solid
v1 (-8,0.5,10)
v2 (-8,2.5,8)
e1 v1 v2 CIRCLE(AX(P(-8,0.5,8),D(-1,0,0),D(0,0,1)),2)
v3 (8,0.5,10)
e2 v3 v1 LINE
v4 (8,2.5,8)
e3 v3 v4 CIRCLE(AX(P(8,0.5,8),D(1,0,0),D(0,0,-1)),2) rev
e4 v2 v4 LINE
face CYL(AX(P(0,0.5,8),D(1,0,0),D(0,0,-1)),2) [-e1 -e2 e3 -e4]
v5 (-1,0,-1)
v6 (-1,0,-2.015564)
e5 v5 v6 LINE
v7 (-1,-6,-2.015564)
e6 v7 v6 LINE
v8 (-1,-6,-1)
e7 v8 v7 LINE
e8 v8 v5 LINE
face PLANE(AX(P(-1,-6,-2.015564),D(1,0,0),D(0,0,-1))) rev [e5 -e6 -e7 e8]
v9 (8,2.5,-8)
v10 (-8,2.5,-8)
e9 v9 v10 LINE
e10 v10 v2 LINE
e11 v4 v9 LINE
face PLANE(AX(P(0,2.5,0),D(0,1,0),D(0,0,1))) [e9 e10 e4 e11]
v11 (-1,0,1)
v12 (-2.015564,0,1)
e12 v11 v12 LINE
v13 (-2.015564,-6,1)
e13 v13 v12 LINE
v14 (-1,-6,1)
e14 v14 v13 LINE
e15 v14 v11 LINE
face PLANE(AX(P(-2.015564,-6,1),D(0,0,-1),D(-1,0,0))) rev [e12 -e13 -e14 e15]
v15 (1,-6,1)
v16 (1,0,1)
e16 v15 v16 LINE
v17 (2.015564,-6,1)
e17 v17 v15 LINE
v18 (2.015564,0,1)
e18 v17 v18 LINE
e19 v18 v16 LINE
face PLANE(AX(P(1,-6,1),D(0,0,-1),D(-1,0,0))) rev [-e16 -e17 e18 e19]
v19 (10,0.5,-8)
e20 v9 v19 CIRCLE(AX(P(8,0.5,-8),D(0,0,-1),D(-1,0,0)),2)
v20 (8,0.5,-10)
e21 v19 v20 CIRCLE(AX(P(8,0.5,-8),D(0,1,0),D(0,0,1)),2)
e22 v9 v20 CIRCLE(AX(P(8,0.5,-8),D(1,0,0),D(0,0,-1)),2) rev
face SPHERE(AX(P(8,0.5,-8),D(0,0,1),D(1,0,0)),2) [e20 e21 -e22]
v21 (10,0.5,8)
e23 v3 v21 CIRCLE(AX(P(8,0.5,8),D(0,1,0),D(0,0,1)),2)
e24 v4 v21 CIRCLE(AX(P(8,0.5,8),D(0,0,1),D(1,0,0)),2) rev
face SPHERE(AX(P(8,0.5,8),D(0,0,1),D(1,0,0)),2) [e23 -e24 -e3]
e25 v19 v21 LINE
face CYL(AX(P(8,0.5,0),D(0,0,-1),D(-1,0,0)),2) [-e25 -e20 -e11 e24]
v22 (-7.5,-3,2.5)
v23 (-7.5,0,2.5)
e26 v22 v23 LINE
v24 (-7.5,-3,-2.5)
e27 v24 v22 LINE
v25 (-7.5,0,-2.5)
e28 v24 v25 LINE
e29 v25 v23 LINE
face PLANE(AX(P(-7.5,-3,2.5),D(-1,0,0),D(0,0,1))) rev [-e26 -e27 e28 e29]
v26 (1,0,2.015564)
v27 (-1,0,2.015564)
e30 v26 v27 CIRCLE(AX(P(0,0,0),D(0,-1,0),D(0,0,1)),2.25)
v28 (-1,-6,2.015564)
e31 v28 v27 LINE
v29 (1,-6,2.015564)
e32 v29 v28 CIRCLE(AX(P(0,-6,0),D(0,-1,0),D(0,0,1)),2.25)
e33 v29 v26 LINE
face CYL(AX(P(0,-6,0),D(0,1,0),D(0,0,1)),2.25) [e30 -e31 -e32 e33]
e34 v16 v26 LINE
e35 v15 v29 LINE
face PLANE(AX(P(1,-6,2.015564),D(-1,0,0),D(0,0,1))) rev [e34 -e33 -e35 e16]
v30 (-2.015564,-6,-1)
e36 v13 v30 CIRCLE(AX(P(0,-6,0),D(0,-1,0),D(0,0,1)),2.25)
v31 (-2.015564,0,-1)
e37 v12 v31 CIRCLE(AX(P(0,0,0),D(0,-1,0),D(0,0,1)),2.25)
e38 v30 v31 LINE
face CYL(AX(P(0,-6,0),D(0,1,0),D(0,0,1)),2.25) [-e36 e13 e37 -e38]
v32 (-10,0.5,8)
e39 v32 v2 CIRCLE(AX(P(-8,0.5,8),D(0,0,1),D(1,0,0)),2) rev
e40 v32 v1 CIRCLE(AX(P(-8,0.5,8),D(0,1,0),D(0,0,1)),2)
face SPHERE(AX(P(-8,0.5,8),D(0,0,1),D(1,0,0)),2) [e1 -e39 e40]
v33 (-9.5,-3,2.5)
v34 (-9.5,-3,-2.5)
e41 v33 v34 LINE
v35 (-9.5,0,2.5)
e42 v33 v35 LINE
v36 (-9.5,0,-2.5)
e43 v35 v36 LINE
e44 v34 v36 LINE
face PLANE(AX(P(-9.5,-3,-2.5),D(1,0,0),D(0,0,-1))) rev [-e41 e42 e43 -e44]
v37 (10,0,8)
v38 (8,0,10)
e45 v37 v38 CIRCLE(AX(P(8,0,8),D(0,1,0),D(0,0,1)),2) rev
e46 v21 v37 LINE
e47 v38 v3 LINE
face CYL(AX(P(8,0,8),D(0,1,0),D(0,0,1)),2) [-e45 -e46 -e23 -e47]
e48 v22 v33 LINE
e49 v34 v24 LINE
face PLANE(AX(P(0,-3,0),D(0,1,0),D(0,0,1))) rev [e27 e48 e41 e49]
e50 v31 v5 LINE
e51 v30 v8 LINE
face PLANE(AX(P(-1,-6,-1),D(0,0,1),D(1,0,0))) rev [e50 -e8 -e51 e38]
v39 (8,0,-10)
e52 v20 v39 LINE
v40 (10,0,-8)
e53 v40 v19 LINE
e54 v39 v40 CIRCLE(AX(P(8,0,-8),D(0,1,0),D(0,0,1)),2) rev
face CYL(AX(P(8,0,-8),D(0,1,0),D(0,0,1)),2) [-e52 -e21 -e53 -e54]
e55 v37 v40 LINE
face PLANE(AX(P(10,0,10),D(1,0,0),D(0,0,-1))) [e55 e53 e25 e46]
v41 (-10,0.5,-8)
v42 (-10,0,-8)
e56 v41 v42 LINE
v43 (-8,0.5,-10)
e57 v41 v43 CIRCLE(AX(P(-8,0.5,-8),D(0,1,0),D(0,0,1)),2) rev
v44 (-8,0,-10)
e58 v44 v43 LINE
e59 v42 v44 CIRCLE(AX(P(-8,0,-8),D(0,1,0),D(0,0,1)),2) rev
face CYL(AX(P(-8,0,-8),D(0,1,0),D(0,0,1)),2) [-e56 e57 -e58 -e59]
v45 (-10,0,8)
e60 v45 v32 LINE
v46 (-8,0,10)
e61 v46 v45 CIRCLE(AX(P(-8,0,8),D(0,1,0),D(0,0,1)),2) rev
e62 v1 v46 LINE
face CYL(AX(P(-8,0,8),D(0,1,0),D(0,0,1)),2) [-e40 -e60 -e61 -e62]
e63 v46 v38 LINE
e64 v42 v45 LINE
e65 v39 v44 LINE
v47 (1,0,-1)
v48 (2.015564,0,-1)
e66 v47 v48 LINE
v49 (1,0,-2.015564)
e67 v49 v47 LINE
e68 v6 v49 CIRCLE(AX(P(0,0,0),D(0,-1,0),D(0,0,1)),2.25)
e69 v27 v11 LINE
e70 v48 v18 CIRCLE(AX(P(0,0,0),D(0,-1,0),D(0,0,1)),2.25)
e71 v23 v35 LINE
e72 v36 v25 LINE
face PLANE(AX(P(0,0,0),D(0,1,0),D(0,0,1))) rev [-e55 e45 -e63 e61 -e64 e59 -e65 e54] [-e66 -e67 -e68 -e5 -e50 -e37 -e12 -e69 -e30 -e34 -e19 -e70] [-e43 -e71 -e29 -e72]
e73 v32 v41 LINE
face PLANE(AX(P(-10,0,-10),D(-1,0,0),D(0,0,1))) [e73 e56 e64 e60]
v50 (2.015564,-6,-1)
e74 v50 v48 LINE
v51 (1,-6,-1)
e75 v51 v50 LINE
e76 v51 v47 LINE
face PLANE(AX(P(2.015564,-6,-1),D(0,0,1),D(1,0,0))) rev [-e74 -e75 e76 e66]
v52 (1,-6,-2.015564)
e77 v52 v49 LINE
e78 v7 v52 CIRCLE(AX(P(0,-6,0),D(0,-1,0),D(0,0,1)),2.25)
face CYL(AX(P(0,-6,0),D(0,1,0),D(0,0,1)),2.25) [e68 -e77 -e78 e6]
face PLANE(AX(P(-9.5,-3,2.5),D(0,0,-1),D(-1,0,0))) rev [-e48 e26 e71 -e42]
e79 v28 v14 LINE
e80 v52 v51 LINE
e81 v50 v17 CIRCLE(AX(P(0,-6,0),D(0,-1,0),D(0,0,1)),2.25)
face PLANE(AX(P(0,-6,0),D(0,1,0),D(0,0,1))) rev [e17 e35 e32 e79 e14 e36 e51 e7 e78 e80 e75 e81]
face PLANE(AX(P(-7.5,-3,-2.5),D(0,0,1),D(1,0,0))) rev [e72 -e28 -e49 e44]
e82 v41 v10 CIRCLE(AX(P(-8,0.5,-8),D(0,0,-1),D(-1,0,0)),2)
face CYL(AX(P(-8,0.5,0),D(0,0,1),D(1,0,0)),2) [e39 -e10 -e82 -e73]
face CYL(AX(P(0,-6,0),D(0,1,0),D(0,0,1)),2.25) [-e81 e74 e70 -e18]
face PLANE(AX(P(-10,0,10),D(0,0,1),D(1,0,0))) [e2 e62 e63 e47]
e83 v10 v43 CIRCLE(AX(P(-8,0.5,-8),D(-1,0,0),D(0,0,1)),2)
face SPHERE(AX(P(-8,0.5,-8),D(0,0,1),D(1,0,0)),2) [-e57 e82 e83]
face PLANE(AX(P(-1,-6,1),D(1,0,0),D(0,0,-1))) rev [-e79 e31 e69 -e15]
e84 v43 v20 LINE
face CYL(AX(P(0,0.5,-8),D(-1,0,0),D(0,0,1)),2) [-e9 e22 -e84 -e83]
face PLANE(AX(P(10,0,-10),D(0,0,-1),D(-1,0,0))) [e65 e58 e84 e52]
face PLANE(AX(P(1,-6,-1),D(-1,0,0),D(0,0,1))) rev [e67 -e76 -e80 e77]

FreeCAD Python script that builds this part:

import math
import FreeCAD as App
import Part
import Sketcher
Q = App.Units.Quantity


def edges_at(feature, points):
    """Names of the edges that pass closest to the given points."""
    edges = feature.Shape.Edges
    near = lambda p: min(range(len(edges)), key=lambda i: edges[i].distToShape(Part.Vertex(*p))[0])
    return sorted({f"Edge{near(p) + 1}" for p in points})

doc = App.newDocument("Part")
body = doc.addObject("PartDesign::Body", "Body")

sketch1 = doc.addObject("Sketcher::SketchObject", "Sketch")
body.addObject(sketch1)
sketch1.AttachmentSupport = (doc.XZ_Plane, [""])
sketch1.MapMode = "FlatFace"
sketch1.AttachmentOffset = App.Placement(App.Vector(0, 0, -2.5), App.Rotation())
sketch1.addGeometry(Part.LineSegment(App.Vector(-10, -10, 0), App.Vector(-10, 10, 0)), False)
sketch1.addGeometry(Part.LineSegment(App.Vector(-10, 10, 0), App.Vector(10, 10, 0)), False)
sketch1.addGeometry(Part.LineSegment(App.Vector(10, 10, 0), App.Vector(10, -10, 0)), False)
sketch1.addGeometry(Part.LineSegment(App.Vector(10, -10, 0), App.Vector(-10, -10, 0)), False)
sketch1.addConstraint(Sketcher.Constraint("Coincident", 0, 2, 1, 1))
sketch1.addConstraint(Sketcher.Constraint("Coincident", 1, 2, 2, 1))
sketch1.addConstraint(Sketcher.Constraint("Coincident", 2, 2, 3, 1))
sketch1.addConstraint(Sketcher.Constraint("Coincident", 3, 2, 0, 1))
sketch1.addConstraint(Sketcher.Constraint("Vertical", 0))
sketch1.addConstraint(Sketcher.Constraint("Horizontal", 1))
sketch1.addConstraint(Sketcher.Constraint("Vertical", 2))
sketch1.addConstraint(Sketcher.Constraint("Horizontal", 3))
sketch1.addConstraint(Sketcher.Constraint("Symmetric", 0, 2, 2, 2, -1, 1))
sketch1.addConstraint(Sketcher.Constraint("Equal", 3, 0))
sketch1.addConstraint(Sketcher.Constraint("DistanceX", 1, 1, 1, 2, Q("20 mm")))
pad1 = doc.addObject("PartDesign::Pad", "Pad")
body.addObject(pad1)
pad1.Profile = sketch1
pad1.Length = 2.5

sketch2 = doc.addObject("Sketcher::SketchObject", "Sketch001")
body.addObject(sketch2)
sketch2.AttachmentSupport = (doc.XZ_Plane, [""])
sketch2.MapMode = "FlatFace"
sketch2.addGeometry(Part.LineSegment(App.Vector(-1, 1, 0), App.Vector(-2.015564, 1, 0)), False)
sketch2.addGeometry(Part.ArcOfCircle(Part.Circle(App.Vector(0, 0, 0), App.Vector(0, 0, 1), 2.25), math.radians(153.6122), math.radians(206.3878)), False)
sketch2.addGeometry(Part.LineSegment(App.Vector(-2.015564, -1, 0), App.Vector(-1, -1, 0)), False)
sketch2.addGeometry(Part.LineSegment(App.Vector(-1, -1, 0), App.Vector(-1, -2.015564, 0)), False)
sketch2.addGeometry(Part.ArcOfCircle(Part.Circle(App.Vector(0, 0, 0), App.Vector(0, 0, 1), 2.25), math.radians(-116.3878), math.radians(-63.6122)), False)
sketch2.addGeometry(Part.LineSegment(App.Vector(1, -2.015564, 0), App.Vector(1, -1, 0)), False)
sketch2.addGeometry(Part.LineSegment(App.Vector(1, -1, 0), App.Vector(2.015564, -1, 0)), False)
sketch2.addGeometry(Part.ArcOfCircle(Part.Circle(App.Vector(0, 0, 0), App.Vector(0, 0, 1), 2.25), math.radians(-26.3878), math.radians(26.3878)), False)
sketch2.addGeometry(Part.LineSegment(App.Vector(2.015564, 1, 0), App.Vector(1, 1, 0)), False)
sketch2.addGeometry(Part.LineSegment(App.Vector(1, 1, 0), App.Vector(1, 2.015564, 0)), False)
sketch2.addGeometry(Part.ArcOfCircle(Part.Circle(App.Vector(0, 0, 0), App.Vector(0, 0, 1), 2.25), math.radians(63.6122), math.radians(116.3878)), False)
sketch2.addGeometry(Part.LineSegment(App.Vector(-1, 2.015564, 0), App.Vector(-1, 1, 0)), False)
sketch2.addConstraint(Sketcher.Constraint("Coincident", 0, 2, 1, 1))
sketch2.addConstraint(Sketcher.Constraint("Coincident", 1, 2, 2, 1))
sketch2.addConstraint(Sketcher.Constraint("Coincident", 2, 2, 3, 1))
sketch2.addConstraint(Sketcher.Constraint("Coincident", 3, 2, 4, 1))
sketch2.addConstraint(Sketcher.Constraint("Coincident", 4, 2, 5, 1))
sketch2.addConstraint(Sketcher.Constraint("Coincident", 5, 2, 6, 1))
sketch2.addConstraint(Sketcher.Constraint("Coincident", 6, 2, 7, 1))
sketch2.addConstraint(Sketcher.Constraint("Coincident", 7, 2, 8, 1))
sketch2.addConstraint(Sketcher.Constraint("Coincident", 8, 2, 9, 1))
sketch2.addConstraint(Sketcher.Constraint("Coincident", 9, 2, 10, 1))
sketch2.addConstraint(Sketcher.Constraint("Coincident", 10, 2, 11, 1))
sketch2.addConstraint(Sketcher.Constraint("Coincident", 11, 2, 0, 1))
sketch2.addConstraint(Sketcher.Constraint("Horizontal", 0))
sketch2.addConstraint(Sketcher.Constraint("Horizontal", 2))
sketch2.addConstraint(Sketcher.Constraint("Vertical", 3))
sketch2.addConstraint(Sketcher.Constraint("Vertical", 5))
sketch2.addConstraint(Sketcher.Constraint("Horizontal", 6))
sketch2.addConstraint(Sketcher.Constraint("Horizontal", 8))
sketch2.addConstraint(Sketcher.Constraint("Vertical", 9))
sketch2.addConstraint(Sketcher.Constraint("Vertical", 11))
sketch2.addConstraint(Sketcher.Constraint("Coincident", 1, 3, -1, 1))
sketch2.addConstraint(Sketcher.Constraint("Coincident", 4, 3, -1, 1))
sketch2.addConstraint(Sketcher.Constraint("Coincident", 7, 3, -1, 1))
sketch2.addConstraint(Sketcher.Constraint("Coincident", 10, 3, -1, 1))
sketch2.addConstraint(Sketcher.Constraint("Equal", 1, 4))
sketch2.addConstraint(Sketcher.Constraint("Equal", 4, 7))
sketch2.addConstraint(Sketcher.Constraint("Equal", 7, 10))
sketch2.addConstraint(Sketcher.Constraint("Symmetric", 2, 2, 8, 2, -1, 1))
sketch2.addConstraint(Sketcher.Constraint("Symmetric", 5, 2, 11, 2, -1, 1))
sketch2.addConstraint(Sketcher.Constraint("Symmetric", 2, 2, 5, 2, -2))
sketch2.addConstraint(Sketcher.Constraint("Equal", 8, 3))
sketch2.addConstraint(Sketcher.Constraint("Radius", 1, Q("2.25 mm")))
sketch2.addConstraint(Sketcher.Constraint("DistanceY", -1, 1, 0, 2, Q("1 mm")))
pad2 = doc.addObject("PartDesign::Pad", "Pad001")
body.addObject(pad2)
pad2.Profile = sketch2
pad2.Length = 6

sketch3 = doc.addObject("Sketcher::SketchObject", "Sketch002")
body.addObject(sketch3)
sketch3.AttachmentSupport = (doc.XZ_Plane, [""])
sketch3.MapMode = "FlatFace"
sketch3.addGeometry(Part.LineSegment(App.Vector(-9.5, 2.5, 0), App.Vector(-9.5, -2.5, 0)), False)
sketch3.addGeometry(Part.LineSegment(App.Vector(-9.5, -2.5, 0), App.Vector(-7.5, -2.5, 0)), False)
sketch3.addGeometry(Part.LineSegment(App.Vector(-7.5, -2.5, 0), App.Vector(-7.5, 2.5, 0)), False)
sketch3.addGeometry(Part.LineSegment(App.Vector(-7.5, 2.5, 0), App.Vector(-9.5, 2.5, 0)), False)
sketch3.addConstraint(Sketcher.Constraint("Coincident", 0, 2, 1, 1))
sketch3.addConstraint(Sketcher.Constraint("Coincident", 1, 2, 2, 1))
sketch3.addConstraint(Sketcher.Constraint("Coincident", 2, 2, 3, 1))
sketch3.addConstraint(Sketcher.Constraint("Coincident", 3, 2, 0, 1))
sketch3.addConstraint(Sketcher.Constraint("Vertical", 0))
sketch3.addConstraint(Sketcher.Constraint("Horizontal", 1))
sketch3.addConstraint(Sketcher.Constraint("Vertical", 2))
sketch3.addConstraint(Sketcher.Constraint("Horizontal", 3))
sketch3.addConstraint(Sketcher.Constraint("DistanceX", 1, 1, 1, 2, Q("2 mm")))
sketch3.addConstraint(Sketcher.Constraint("DistanceY", 0, 2, 0, 1, Q("5 mm")))
sketch3.addConstraint(Sketcher.Constraint("DistanceX", 0, 2, -1, 1, Q("9.5 mm")))
sketch3.addConstraint(Sketcher.Constraint("DistanceY", 0, 2, -1, 1, Q("2.5 mm")))
pad3 = doc.addObject("PartDesign::Pad", "Pad002")
body.addObject(pad3)
pad3.Profile = sketch3
pad3.Length = 3
doc.recompute()

fillet = doc.addObject("PartDesign::Fillet", "Fillet")
body.addObject(fillet)
fillet.Base = (pad3, edges_at(pad3, [
    (0, 2.5, 10),
    (-10, 2.5, 0),
    (0, 2.5, -10),
    (10, 2.5, 0),
    (10, 1.25, 10),
    (-10, 1.25, 10),
    (-10, 1.25, -10),
    (10, 1.25, -10),
]))
fillet.Radius = 2

doc.recompute()
